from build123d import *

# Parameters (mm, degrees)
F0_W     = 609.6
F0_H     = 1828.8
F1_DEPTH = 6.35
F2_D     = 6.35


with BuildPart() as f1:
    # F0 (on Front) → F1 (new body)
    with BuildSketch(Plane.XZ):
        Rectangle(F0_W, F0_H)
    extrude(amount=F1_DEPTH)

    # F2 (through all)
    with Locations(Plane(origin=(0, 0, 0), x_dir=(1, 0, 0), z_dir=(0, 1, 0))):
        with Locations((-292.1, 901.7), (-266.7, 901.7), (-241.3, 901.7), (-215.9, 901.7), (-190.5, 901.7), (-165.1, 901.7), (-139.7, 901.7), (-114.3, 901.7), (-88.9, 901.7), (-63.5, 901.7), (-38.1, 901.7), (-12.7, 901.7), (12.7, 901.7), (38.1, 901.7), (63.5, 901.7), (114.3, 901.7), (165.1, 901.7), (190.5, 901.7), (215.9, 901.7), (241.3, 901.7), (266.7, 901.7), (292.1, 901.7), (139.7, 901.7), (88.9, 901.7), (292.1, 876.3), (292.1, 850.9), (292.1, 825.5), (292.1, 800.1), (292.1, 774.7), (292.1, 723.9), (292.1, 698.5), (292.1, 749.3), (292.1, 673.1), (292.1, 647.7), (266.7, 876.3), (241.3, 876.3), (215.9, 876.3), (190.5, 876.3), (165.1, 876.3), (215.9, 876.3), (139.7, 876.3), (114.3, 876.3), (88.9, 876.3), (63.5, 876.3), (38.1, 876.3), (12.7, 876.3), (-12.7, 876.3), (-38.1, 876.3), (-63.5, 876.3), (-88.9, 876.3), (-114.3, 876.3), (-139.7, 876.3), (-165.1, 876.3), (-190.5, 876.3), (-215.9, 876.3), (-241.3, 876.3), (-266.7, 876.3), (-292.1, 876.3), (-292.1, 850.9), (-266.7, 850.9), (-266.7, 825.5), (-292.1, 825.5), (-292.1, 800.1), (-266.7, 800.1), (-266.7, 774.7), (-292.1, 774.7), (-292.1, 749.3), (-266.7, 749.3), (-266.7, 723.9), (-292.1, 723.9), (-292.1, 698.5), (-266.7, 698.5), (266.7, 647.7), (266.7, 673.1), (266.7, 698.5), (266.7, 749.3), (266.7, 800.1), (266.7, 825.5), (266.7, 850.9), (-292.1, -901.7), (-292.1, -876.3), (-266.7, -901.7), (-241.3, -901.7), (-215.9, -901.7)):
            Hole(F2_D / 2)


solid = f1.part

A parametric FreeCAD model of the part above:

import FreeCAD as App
import Part
import Sketcher
Q = App.Units.Quantity


def add_polygon(sketch, points):
    """Adds a closed chain of lines whose ends are joined by coincident constraints."""
    first, n = sketch.GeometryCount, len(points)
    for a, b in zip(points, points[1:] + points[:1]):
        sketch.addGeometry(Part.LineSegment(App.Vector(*a, 0), App.Vector(*b, 0)), False)
    for i in range(n):
        sketch.addConstraint(Sketcher.Constraint("Coincident", first + i, 2, first + (i + 1) % n, 1))

doc = App.newDocument("Part")
body = doc.addObject("PartDesign::Body", "Body")

# Sketch on XZ plane
sketch1 = body.newObject("Sketcher::SketchObject", "Sketch")
sketch1.AttachmentSupport = (doc.getObject("XZ_Plane"), [""])
sketch1.MapMode = "FlatFace"
add_polygon(sketch1, [(-304.8, 914.4), (-304.8, -914.4), (304.8, -914.4), (304.8, 914.4)])  # lines 0-3
sketch1.addConstraint([
    Sketcher.Constraint("Vertical", 0),
    Sketcher.Constraint("Horizontal", 1),
    Sketcher.Constraint("Vertical", 2),
    Sketcher.Constraint("Horizontal", 3),
    Sketcher.Constraint("Symmetric", 0, 2, 2, 2, -1, 1),
    Sketcher.Constraint("DistanceX", 1, 1, 1, 2, Q("24 in")),
    Sketcher.Constraint("DistanceY", 0, 2, 0, 1, Q("72 in")),
])
pad1 = body.newObject("PartDesign::Pad", "Pad")
pad1.Profile = sketch1
pad1.Length = Q("0.25 in")

# Sketch on XZ plane
sketch2 = body.newObject("Sketcher::SketchObject", "Sketch001")
sketch2.AttachmentSupport = (doc.getObject("XZ_Plane"), [""])
sketch2.MapMode = "FlatFace"
sketch2.addGeometry([
    Part.Circle(App.Vector(-292.1, -901.7, 0), App.Vector(0, 0, 1), 3.175),  # 0
    Part.Circle(App.Vector(-266.7, -901.7, 0), App.Vector(0, 0, 1), 3.175),  # 1
    Part.Circle(App.Vector(-241.3, -901.7, 0), App.Vector(0, 0, 1), 3.175),  # 2
    Part.Circle(App.Vector(-215.9, -901.7, 0), App.Vector(0, 0, 1), 3.175),  # 3
    Part.Circle(App.Vector(-190.5, -901.7, 0), App.Vector(0, 0, 1), 3.175),  # 4
    Part.Circle(App.Vector(-165.1, -901.7, 0), App.Vector(0, 0, 1), 3.175),  # 5
    Part.Circle(App.Vector(-139.7, -901.7, 0), App.Vector(0, 0, 1), 3.175),  # 6
    Part.Circle(App.Vector(-114.3, -901.7, 0), App.Vector(0, 0, 1), 3.175),  # 7
    Part.Circle(App.Vector(-88.9, -901.7, 0), App.Vector(0, 0, 1), 3.175),  # 8
    Part.Circle(App.Vector(-63.5, -901.7, 0), App.Vector(0, 0, 1), 3.175),  # 9
    Part.Circle(App.Vector(-38.1, -901.7, 0), App.Vector(0, 0, 1), 3.175),  # 10
    Part.Circle(App.Vector(-12.7, -901.7, 0), App.Vector(0, 0, 1), 3.175),  # 11
    Part.Circle(App.Vector(12.7, -901.7, 0), App.Vector(0, 0, 1), 3.175),  # 12
    Part.Circle(App.Vector(38.1, -901.7, 0), App.Vector(0, 0, 1), 3.175),  # 13
    Part.Circle(App.Vector(63.5, -901.7, 0), App.Vector(0, 0, 1), 3.175),  # 14
    Part.Circle(App.Vector(114.3, -901.7, 0), App.Vector(0, 0, 1), 3.175),  # 15
    Part.Circle(App.Vector(165.1, -901.7, 0), App.Vector(0, 0, 1), 3.175),  # 16
    Part.Circle(App.Vector(190.5, -901.7, 0), App.Vector(0, 0, 1), 3.175),  # 17
    Part.Circle(App.Vector(215.9, -901.7, 0), App.Vector(0, 0, 1), 3.175),  # 18
    Part.Circle(App.Vector(241.3, -901.7, 0), App.Vector(0, 0, 1), 3.175),  # 19
    Part.Circle(App.Vector(266.7, -901.7, 0), App.Vector(0, 0, 1), 3.175),  # 20
    Part.Circle(App.Vector(292.1, -901.7, 0), App.Vector(0, 0, 1), 3.175),  # 21
    Part.Circle(App.Vector(139.7, -901.7, 0), App.Vector(0, 0, 1), 3.175),  # 22
    Part.Circle(App.Vector(88.9, -901.7, 0), App.Vector(0, 0, 1), 3.175),  # 23
    Part.Circle(App.Vector(292.1, -876.3, 0), App.Vector(0, 0, 1), 3.175),  # 24
    Part.Circle(App.Vector(292.1, -850.9, 0), App.Vector(0, 0, 1), 3.175),  # 25
    Part.Circle(App.Vector(292.1, -825.5, 0), App.Vector(0, 0, 1), 3.175),  # 26
    Part.Circle(App.Vector(292.1, -800.1, 0), App.Vector(0, 0, 1), 3.175),  # 27
    Part.Circle(App.Vector(292.1, -774.7, 0), App.Vector(0, 0, 1), 3.175),  # 28
    Part.Circle(App.Vector(292.1, -723.9, 0), App.Vector(0, 0, 1), 3.175),  # 29
    Part.Circle(App.Vector(292.1, -698.5, 0), App.Vector(0, 0, 1), 3.175),  # 30
    Part.Circle(App.Vector(292.1, -749.3, 0), App.Vector(0, 0, 1), 3.175),  # 31
    Part.Circle(App.Vector(292.1, -673.1, 0), App.Vector(0, 0, 1), 3.175),  # 32
    Part.Circle(App.Vector(292.1, -647.7, 0), App.Vector(0, 0, 1), 3.175),  # 33
    Part.Circle(App.Vector(266.7, -876.3, 0), App.Vector(0, 0, 1), 3.175),  # 34
    Part.Circle(App.Vector(241.3, -876.3, 0), App.Vector(0, 0, 1), 3.175),  # 35
    Part.Circle(App.Vector(215.9, -876.3, 0), App.Vector(0, 0, 1), 3.175),  # 36
    Part.Circle(App.Vector(190.5, -876.3, 0), App.Vector(0, 0, 1), 3.175),  # 37
    Part.Circle(App.Vector(165.1, -876.3, 0), App.Vector(0, 0, 1), 3.175),  # 38
    Part.Circle(App.Vector(215.9, -876.3, 0), App.Vector(0, 0, 1), 3.175),  # 39
    Part.Circle(App.Vector(139.7, -876.3, 0), App.Vector(0, 0, 1), 3.175),  # 40
    Part.Circle(App.Vector(114.3, -876.3, 0), App.Vector(0, 0, 1), 3.175),  # 41
    Part.Circle(App.Vector(88.9, -876.3, 0), App.Vector(0, 0, 1), 3.175),  # 42
    Part.Circle(App.Vector(63.5, -876.3, 0), App.Vector(0, 0, 1), 3.175),  # 43
    Part.Circle(App.Vector(38.1, -876.3, 0), App.Vector(0, 0, 1), 3.175),  # 44
    Part.Circle(App.Vector(12.7, -876.3, 0), App.Vector(0, 0, 1), 3.175),  # 45
    Part.Circle(App.Vector(-12.7, -876.3, 0), App.Vector(0, 0, 1), 3.175),  # 46
    Part.Circle(App.Vector(-38.1, -876.3, 0), App.Vector(0, 0, 1), 3.175),  # 47
    Part.Circle(App.Vector(-63.5, -876.3, 0), App.Vector(0, 0, 1), 3.175),  # 48
    Part.Circle(App.Vector(-88.9, -876.3, 0), App.Vector(0, 0, 1), 3.175),  # 49
    Part.Circle(App.Vector(-114.3, -876.3, 0), App.Vector(0, 0, 1), 3.175),  # 50
    Part.Circle(App.Vector(-139.7, -876.3, 0), App.Vector(0, 0, 1), 3.175),  # 51
    Part.Circle(App.Vector(-165.1, -876.3, 0), App.Vector(0, 0, 1), 3.175),  # 52
    Part.Circle(App.Vector(-190.5, -876.3, 0), App.Vector(0, 0, 1), 3.175),  # 53
    Part.Circle(App.Vector(-215.9, -876.3, 0), App.Vector(0, 0, 1), 3.175),  # 54
    Part.Circle(App.Vector(-241.3, -876.3, 0), App.Vector(0, 0, 1), 3.175),  # 55
    Part.Circle(App.Vector(-266.7, -876.3, 0), App.Vector(0, 0, 1), 3.175),  # 56
    Part.Circle(App.Vector(-292.1, -876.3, 0), App.Vector(0, 0, 1), 3.175),  # 57
    Part.Circle(App.Vector(-292.1, -850.9, 0), App.Vector(0, 0, 1), 3.175),  # 58
    Part.Circle(App.Vector(-266.7, -850.9, 0), App.Vector(0, 0, 1), 3.175),  # 59
    Part.Circle(App.Vector(-266.7, -825.5, 0), App.Vector(0, 0, 1), 3.175),  # 60
    Part.Circle(App.Vector(-292.1, -825.5, 0), App.Vector(0, 0, 1), 3.175),  # 61
    Part.Circle(App.Vector(-292.1, -800.1, 0), App.Vector(0, 0, 1), 3.175),  # 62
    Part.Circle(App.Vector(-266.7, -800.1, 0), App.Vector(0, 0, 1), 3.175),  # 63
    Part.Circle(App.Vector(-266.7, -774.7, 0), App.Vector(0, 0, 1), 3.175),  # 64
    Part.Circle(App.Vector(-292.1, -774.7, 0), App.Vector(0, 0, 1), 3.175),  # 65
    Part.Circle(App.Vector(-292.1, -749.3, 0), App.Vector(0, 0, 1), 3.175),  # 66
    Part.Circle(App.Vector(-266.7, -749.3, 0), App.Vector(0, 0, 1), 3.175),  # 67
    Part.Circle(App.Vector(-266.7, -723.9, 0), App.Vector(0, 0, 1), 3.175),  # 68
    Part.Circle(App.Vector(-292.1, -723.9, 0), App.Vector(0, 0, 1), 3.175),  # 69
    Part.Circle(App.Vector(-292.1, -698.5, 0), App.Vector(0, 0, 1), 3.175),  # 70
    Part.Circle(App.Vector(-266.7, -698.5, 0), App.Vector(0, 0, 1), 3.175),  # 71
    Part.Circle(App.Vector(266.7, -647.7, 0), App.Vector(0, 0, 1), 3.175),  # 72
    Part.Circle(App.Vector(266.7, -673.1, 0), App.Vector(0, 0, 1), 3.175),  # 73
    Part.Circle(App.Vector(266.7, -698.5, 0), App.Vector(0, 0, 1), 3.175),  # 74
    Part.Circle(App.Vector(266.7, -749.3, 0), App.Vector(0, 0, 1), 3.175),  # 75
    Part.Circle(App.Vector(266.7, -800.1, 0), App.Vector(0, 0, 1), 3.175),  # 76
    Part.Circle(App.Vector(266.7, -825.5, 0), App.Vector(0, 0, 1), 3.175),  # 77
    Part.Circle(App.Vector(266.7, -850.9, 0), App.Vector(0, 0, 1), 3.175),  # 78
    Part.Circle(App.Vector(-292.1, 901.7, 0), App.Vector(0, 0, 1), 3.175),  # 79
    Part.Circle(App.Vector(-292.1, 876.3, 0), App.Vector(0, 0, 1), 3.175),  # 80
    Part.Circle(App.Vector(-266.7, 901.7, 0), App.Vector(0, 0, 1), 3.175),  # 81
    Part.Circle(App.Vector(-241.3, 901.7, 0), App.Vector(0, 0, 1), 3.175),  # 82
    Part.Circle(App.Vector(-215.9, 901.7, 0), App.Vector(0, 0, 1), 3.175),  # 83
], False)
sketch2.addConstraint([
    Sketcher.Constraint("Coincident", 39, 3, 36, 3),
    Sketcher.Constraint("Equal", 0, 1),
    Sketcher.Constraint("Equal", 1, 2),
    Sketcher.Constraint("Equal", 2, 3),
    Sketcher.Constraint("Equal", 3, 4),
    Sketcher.Constraint("Equal", 4, 5),
    Sketcher.Constraint("Equal", 5, 6),
    Sketcher.Constraint("Equal", 6, 7),
    Sketcher.Constraint("Equal", 7, 8),
    Sketcher.Constraint("Equal", 8, 9),
    Sketcher.Constraint("Equal", 9, 10),
    Sketcher.Constraint("Equal", 10, 11),
    Sketcher.Constraint("Equal", 11, 12),
    Sketcher.Constraint("Equal", 12, 13),
    Sketcher.Constraint("Equal", 13, 14),
    Sketcher.Constraint("Equal", 14, 15),
    Sketcher.Constraint("Equal", 15, 16),
    Sketcher.Constraint("Equal", 16, 17),
    Sketcher.Constraint("Equal", 17, 18),
    Sketcher.Constraint("Equal", 18, 19),
    Sketcher.Constraint("Equal", 19, 20),
    Sketcher.Constraint("Equal", 20, 21),
    Sketcher.Constraint("Equal", 21, 22),
    Sketcher.Constraint("Equal", 22, 23),
    Sketcher.Constraint("Equal", 23, 24),
    Sketcher.Constraint("Equal", 24, 25),
    Sketcher.Constraint("Equal", 25, 26),
    Sketcher.Constraint("Equal", 26, 27),
    Sketcher.Constraint("Equal", 27, 28),
    Sketcher.Constraint("Equal", 28, 29),
    Sketcher.Constraint("Equal", 29, 30),
    Sketcher.Constraint("Equal", 30, 31),
    Sketcher.Constraint("Equal", 31, 32),
    Sketcher.Constraint("Equal", 32, 33),
    Sketcher.Constraint("Equal", 33, 34),
    Sketcher.Constraint("Equal", 34, 35),
    Sketcher.Constraint("Equal", 35, 36),
    Sketcher.Constraint("Equal", 36, 37),
    Sketcher.Constraint("Equal", 37, 38),
    Sketcher.Constraint("Equal", 38, 39),
    Sketcher.Constraint("Equal", 39, 40),
    Sketcher.Constraint("Equal", 40, 41),
    Sketcher.Constraint("Equal", 41, 42),
    Sketcher.Constraint("Equal", 42, 43),
    Sketcher.Constraint("Equal", 43, 44),
    Sketcher.Constraint("Equal", 44, 45),
    Sketcher.Constraint("Equal", 45, 46),
    Sketcher.Constraint("Equal", 46, 47),
    Sketcher.Constraint("Equal", 47, 48),
    Sketcher.Constraint("Equal", 48, 49),
    Sketcher.Constraint("Equal", 49, 50),
    Sketcher.Constraint("Equal", 50, 51),
    Sketcher.Constraint("Equal", 51, 52),
    Sketcher.Constraint("Equal", 52, 53),
    Sketcher.Constraint("Equal", 53, 54),
    Sketcher.Constraint("Equal", 54, 55),
    Sketcher.Constraint("Equal", 55, 56),
    Sketcher.Constraint("Equal", 56, 57),
    Sketcher.Constraint("Equal", 57, 58),
    Sketcher.Constraint("Equal", 58, 59),
    Sketcher.Constraint("Equal", 59, 60),
    Sketcher.Constraint("Equal", 60, 61),
    Sketcher.Constraint("Equal", 61, 62),
    Sketcher.Constraint("Equal", 62, 63),
    Sketcher.Constraint("Equal", 63, 64),
    Sketcher.Constraint("Equal", 64, 65),
    Sketcher.Constraint("Equal", 65, 66),
    Sketcher.Constraint("Equal", 66, 67),
    Sketcher.Constraint("Equal", 67, 68),
    Sketcher.Constraint("Equal", 68, 69),
    Sketcher.Constraint("Equal", 69, 70),
    Sketcher.Constraint("Equal", 70, 71),
    Sketcher.Constraint("Equal", 71, 72),
    Sketcher.Constraint("Equal", 72, 73),
    Sketcher.Constraint("Equal", 73, 74),
    Sketcher.Constraint("Equal", 74, 75),
    Sketcher.Constraint("Equal", 75, 76),
    Sketcher.Constraint("Equal", 76, 77),
    Sketcher.Constraint("Equal", 77, 78),
    Sketcher.Constraint("Equal", 78, 79),
    Sketcher.Constraint("Equal", 79, 80),
    Sketcher.Constraint("Equal", 80, 81),
    Sketcher.Constraint("Equal", 81, 82),
    Sketcher.Constraint("Equal", 82, 83),
    Sketcher.Constraint("Symmetric", 21, 3, 79, 3, -1, 1),
    Sketcher.Constraint("Symmetric", 24, 3, 80, 3, -1, 1),
    Sketcher.Constraint("Symmetric", 20, 3, 81, 3, -1, 1),
    Sketcher.Constraint("Symmetric", 19, 3, 82, 3, -1, 1),
    Sketcher.Constraint("Symmetric", 18, 3, 83, 3, -1, 1),
    Sketcher.Constraint("Symmetric", 11, 3, 12, 3, -2),
    Sketcher.Constraint("Symmetric", 10, 3, 13, 3, -2),
    Sketcher.Constraint("Symmetric", 9, 3, 14, 3, -2),
    Sketcher.Constraint("Symmetric", 7, 3, 15, 3, -2),
    Sketcher.Constraint("Symmetric", 5, 3, 16, 3, -2),
    Sketcher.Constraint("Symmetric", 4, 3, 17, 3, -2),
    Sketcher.Constraint("Symmetric", 3, 3, 18, 3, -2),
    Sketcher.Constraint("Symmetric", 2, 3, 19, 3, -2),
    Sketcher.Constraint("Symmetric", 1, 3, 20, 3, -2),
    Sketcher.Constraint("Symmetric", 0, 3, 21, 3, -2),
    Sketcher.Constraint("Symmetric", 6, 3, 22, 3, -2),
    Sketcher.Constraint("Symmetric", 8, 3, 23, 3, -2),
    Sketcher.Constraint("Symmetric", 45, 3, 46, 3, -2),
    Sketcher.Constraint("Symmetric", 44, 3, 47, 3, -2),
    Sketcher.Constraint("Symmetric", 43, 3, 48, 3, -2),
    Sketcher.Constraint("Symmetric", 42, 3, 49, 3, -2),
    Sketcher.Constraint("Symmetric", 41, 3, 50, 3, -2),
    Sketcher.Constraint("Symmetric", 40, 3, 51, 3, -2),
    Sketcher.Constraint("Symmetric", 38, 3, 52, 3, -2),
    Sketcher.Constraint("Symmetric", 37, 3, 53, 3, -2),
    Sketcher.Constraint("Symmetric", 36, 3, 54, 3, -2),
    Sketcher.Constraint("Symmetric", 35, 3, 55, 3, -2),
    Sketcher.Constraint("Symmetric", 34, 3, 56, 3, -2),
    Sketcher.Constraint("Symmetric", 24, 3, 57, 3, -2),
    Sketcher.Constraint("Symmetric", 25, 3, 58, 3, -2),
    Sketcher.Constraint("Symmetric", 26, 3, 61, 3, -2),
    Sketcher.Constraint("Symmetric", 27, 3, 62, 3, -2),
    Sketcher.Constraint("Symmetric", 28, 3, 65, 3, -2),
    Sketcher.Constraint("Symmetric", 31, 3, 66, 3, -2),
    Sketcher.Constraint("Symmetric", 29, 3, 69, 3, -2),
    Sketcher.Constraint("Symmetric", 30, 3, 70, 3, -2),
    Sketcher.Constraint("Symmetric", 71, 3, 74, 3, -2),
    Sketcher.Constraint("Symmetric", 67, 3, 75, 3, -2),
    Sketcher.Constraint("Symmetric", 63, 3, 76, 3, -2),
    Sketcher.Constraint("Symmetric", 60, 3, 77, 3, -2),
    Sketcher.Constraint("Symmetric", 59, 3, 78, 3, -2),
    Sketcher.Constraint("Horizontal", 0, 3, 1, 3),
    Sketcher.Constraint("Horizontal", 1, 3, 2, 3),
    Sketcher.Constraint("Horizontal", 2, 3, 3, 3),
    Sketcher.Constraint("Horizontal", 3, 3, 4, 3),
    Sketcher.Constraint("Horizontal", 4, 3, 5, 3),
    Sketcher.Constraint("Horizontal", 5, 3, 6, 3),
    Sketcher.Constraint("Horizontal", 6, 3, 7, 3),
    Sketcher.Constraint("Horizontal", 7, 3, 8, 3),
    Sketcher.Constraint("Horizontal", 8, 3, 9, 3),
    Sketcher.Constraint("Horizontal", 9, 3, 10, 3),
    Sketcher.Constraint("Horizontal", 10, 3, 11, 3),
    Sketcher.Constraint("Horizontal", 24, 3, 34, 3),
    Sketcher.Constraint("Horizontal", 34, 3, 35, 3),
    Sketcher.Constraint("Horizontal", 35, 3, 36, 3),
    Sketcher.Constraint("Horizontal", 36, 3, 37, 3),
    Sketcher.Constraint("Horizontal", 37, 3, 38, 3),
    Sketcher.Constraint("Horizontal", 39, 3, 40, 3),
    Sketcher.Constraint("Horizontal", 40, 3, 41, 3),
    Sketcher.Constraint("Horizontal", 41, 3, 42, 3),
    Sketcher.Constraint("Horizontal", 42, 3, 43, 3),
    Sketcher.Constraint("Horizontal", 43, 3, 44, 3),
    Sketcher.Constraint("Horizontal", 44, 3, 45, 3),
    Sketcher.Constraint("Horizontal", 58, 3, 59, 3),
    Sketcher.Constraint("Horizontal", 26, 3, 60, 3),
    Sketcher.Constraint("Horizontal", 62, 3, 63, 3),
    Sketcher.Constraint("Horizontal", 28, 3, 64, 3),
    Sketcher.Constraint("Horizontal", 66, 3, 67, 3),
    Sketcher.Constraint("Horizontal", 29, 3, 68, 3),
    Sketcher.Constraint("Horizontal", 70, 3, 71, 3),
    Sketcher.Constraint("Horizontal", 33, 3, 72, 3),
    Sketcher.Constraint("Horizontal", 32, 3, 73, 3),
    Sketcher.Constraint("Vertical", 21, 3, 24, 3),
    Sketcher.Constraint("Vertical", 24, 3, 25, 3),
    Sketcher.Constraint("Vertical", 25, 3, 26, 3),
    Sketcher.Constraint("Vertical", 26, 3, 27, 3),
    Sketcher.Constraint("Vertical", 27, 3, 28, 3),
    Sketcher.Constraint("Vertical", 28, 3, 29, 3),
    Sketcher.Constraint("Vertical", 29, 3, 30, 3),
    Sketcher.Constraint("Vertical", 30, 3, 31, 3),
    Sketcher.Constraint("Vertical", 31, 3, 32, 3),
    Sketcher.Constraint("Vertical", 32, 3, 33, 3),
    Sketcher.Constraint("Vertical", 20, 3, 34, 3),
    Sketcher.Constraint("Vertical", 19, 3, 35, 3),
    Sketcher.Constraint("Vertical", 18, 3, 36, 3),
    Sketcher.Constraint("Vertical", 17, 3, 37, 3),
    Sketcher.Constraint("Vertical", 16, 3, 38, 3),
    Sketcher.Constraint("Vertical", 22, 3, 40, 3),
    Sketcher.Constraint("Vertical", 15, 3, 41, 3),
    Sketcher.Constraint("Vertical", 23, 3, 42, 3),
    Sketcher.Constraint("Vertical", 14, 3, 43, 3),
    Sketcher.Constraint("Vertical", 13, 3, 44, 3),
    Sketcher.Constraint("Vertical", 12, 3, 45, 3),
    Sketcher.Constraint("Vertical", 56, 3, 59, 3),
    Sketcher.Constraint("Vertical", 59, 3, 60, 3),
    Sketcher.Constraint("Vertical", 60, 3, 63, 3),
    Sketcher.Constraint("Vertical", 63, 3, 64, 3),
    Sketcher.Constraint("Vertical", 64, 3, 67, 3),
    Sketcher.Constraint("Vertical", 67, 3, 68, 3),
    Sketcher.Constraint("Vertical", 68, 3, 71, 3),
    Sketcher.Constraint("Vertical", 34, 3, 72, 3),
    Sketcher.Constraint("Vertical", 72, 3, 73, 3),
    Sketcher.Constraint("Diameter", 0, Q("0.25 in")),
    Sketcher.Constraint("DistanceX", 0, 3, -1, 1, Q("11.5 in")),
    Sketcher.Constraint("DistanceY", 0, 3, -1, 1, Q("35.5 in")),
    Sketcher.Constraint("DistanceX", 1, 3, -1, 1, Q("10.5 in")),
    Sketcher.Constraint("DistanceX", 2, 3, -1, 1, Q("9.5 in")),
    Sketcher.Constraint("DistanceX", 3, 3, -1, 1, Q("8.5 in")),
    Sketcher.Constraint("DistanceX", 4, 3, -1, 1, Q("7.5 in")),
    Sketcher.Constraint("DistanceX", 5, 3, -1, 1, Q("6.5 in")),
    Sketcher.Constraint("DistanceX", 6, 3, -1, 1, Q("5.5 in")),
    Sketcher.Constraint("DistanceX", 7, 3, -1, 1, Q("4.5 in")),
    Sketcher.Constraint("DistanceX", 8, 3, -1, 1, Q("3.5 in")),
    Sketcher.Constraint("DistanceX", 9, 3, -1, 1, Q("2.5 in")),
    Sketcher.Constraint("DistanceX", 10, 3, -1, 1, Q("1.5 in")),
    Sketcher.Constraint("DistanceX", 11, 3, -1, 1, Q("0.5 in")),
    Sketcher.Constraint("DistanceY", 24, 3, -1, 1, Q("34.5 in")),
    Sketcher.Constraint("DistanceY", 25, 3, -1, 1, Q("33.5 in")),
    Sketcher.Constraint("DistanceY", 26, 3, -1, 1, Q("32.5 in")),
    Sketcher.Constraint("DistanceY", 27, 3, -1, 1, Q("31.5 in")),
    Sketcher.Constraint("DistanceY", 28, 3, -1, 1, Q("30.5 in")),
    Sketcher.Constraint("DistanceY", 29, 3, -1, 1, Q("28.5 in")),
    Sketcher.Constraint("DistanceY", 30, 3, -1, 1, Q("27.5 in")),
    Sketcher.Constraint("DistanceY", 31, 3, -1, 1, Q("29.5 in")),
    Sketcher.Constraint("DistanceY", 32, 3, -1, 1, Q("26.5 in")),
    Sketcher.Constraint("DistanceY", 33, 3, -1, 1, Q("25.5 in")),
])
doc.recompute()
hole = body.newObject("PartDesign::Hole", "Hole")
hole.Profile = sketch2
hole.ThreadType = "None"
hole.Diameter = Q("0.25 in")
hole.DepthType = "ThroughAll"
hole.Reversed = True

doc.recompute()
